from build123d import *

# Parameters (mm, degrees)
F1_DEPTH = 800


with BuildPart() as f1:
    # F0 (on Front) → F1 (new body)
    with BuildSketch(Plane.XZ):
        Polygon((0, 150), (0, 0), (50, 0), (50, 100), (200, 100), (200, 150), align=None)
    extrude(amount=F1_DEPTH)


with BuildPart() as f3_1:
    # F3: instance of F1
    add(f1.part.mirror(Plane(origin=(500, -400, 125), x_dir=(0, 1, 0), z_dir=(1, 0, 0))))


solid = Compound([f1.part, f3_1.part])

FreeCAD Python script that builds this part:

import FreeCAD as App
import Part
import Sketcher
from FreeCAD import Vector

doc = App.newDocument("Part")
body = doc.addObject("PartDesign::Body", "Body")

sketch1 = body.newObject("Sketcher::SketchObject", "Sketch")
sketch1.AttachmentSupport = (doc.getObject("XZ_Plane"), [""])
sketch1.MapMode = "FlatFace"
sketch1.addGeometry([
    Part.LineSegment(Vector(0, 150, 0), Vector(0, 0, 0)),
    Part.LineSegment(Vector(0, 0, 0), Vector(50, 0, 0)),
    Part.LineSegment(Vector(50, 0, 0), Vector(50, 100, 0)),
    Part.LineSegment(Vector(50, 100, 0), Vector(200, 100, 0)),
    Part.LineSegment(Vector(200, 100, 0), Vector(200, 150, 0)),
    Part.LineSegment(Vector(200, 150, 0), Vector(0, 150, 0)),
], False)
sketch1.addConstraint([
    Sketcher.Constraint("Coincident", 0, 2, 1, 1),
    Sketcher.Constraint("Coincident", 1, 2, 2, 1),
    Sketcher.Constraint("Coincident", 2, 2, 3, 1),
    Sketcher.Constraint("Coincident", 3, 2, 4, 1),
    Sketcher.Constraint("Coincident", 4, 2, 5, 1),
    Sketcher.Constraint("Coincident", 5, 2, 0, 1),
    Sketcher.Constraint("Vertical", 0),
    Sketcher.Constraint("Horizontal", 1),
    Sketcher.Constraint("Vertical", 2),
    Sketcher.Constraint("Horizontal", 3),
    Sketcher.Constraint("Vertical", 4),
    Sketcher.Constraint("Horizontal", 5),
    Sketcher.Constraint("Coincident", 0, 2, -1, 1),
    Sketcher.Constraint("Equal", 3, 0),
    Sketcher.Constraint("Equal", 1, 4),
    Sketcher.Constraint("DistanceX", 1, 1, 1, 2, 50.0),
    Sketcher.Constraint("DistanceX", 3, 1, 3, 2, 150.0),
])
pad1 = body.newObject("PartDesign::Pad", "Pad")
pad1.Profile = sketch1
pad1.Length = 800
body2 = doc.addObject("PartDesign::Body", "Body001")
doc.recompute()

mirroring = doc.addObject("Part::Mirroring", "Mirroring")
mirroring.Source = body
mirroring.Base = Vector(500, -400, 125)
mirroring.Normal = Vector(1, 0, 0)
body2.BaseFeature = mirroring
doc.recompute()
mirroring.Visibility = False

doc.recompute()
